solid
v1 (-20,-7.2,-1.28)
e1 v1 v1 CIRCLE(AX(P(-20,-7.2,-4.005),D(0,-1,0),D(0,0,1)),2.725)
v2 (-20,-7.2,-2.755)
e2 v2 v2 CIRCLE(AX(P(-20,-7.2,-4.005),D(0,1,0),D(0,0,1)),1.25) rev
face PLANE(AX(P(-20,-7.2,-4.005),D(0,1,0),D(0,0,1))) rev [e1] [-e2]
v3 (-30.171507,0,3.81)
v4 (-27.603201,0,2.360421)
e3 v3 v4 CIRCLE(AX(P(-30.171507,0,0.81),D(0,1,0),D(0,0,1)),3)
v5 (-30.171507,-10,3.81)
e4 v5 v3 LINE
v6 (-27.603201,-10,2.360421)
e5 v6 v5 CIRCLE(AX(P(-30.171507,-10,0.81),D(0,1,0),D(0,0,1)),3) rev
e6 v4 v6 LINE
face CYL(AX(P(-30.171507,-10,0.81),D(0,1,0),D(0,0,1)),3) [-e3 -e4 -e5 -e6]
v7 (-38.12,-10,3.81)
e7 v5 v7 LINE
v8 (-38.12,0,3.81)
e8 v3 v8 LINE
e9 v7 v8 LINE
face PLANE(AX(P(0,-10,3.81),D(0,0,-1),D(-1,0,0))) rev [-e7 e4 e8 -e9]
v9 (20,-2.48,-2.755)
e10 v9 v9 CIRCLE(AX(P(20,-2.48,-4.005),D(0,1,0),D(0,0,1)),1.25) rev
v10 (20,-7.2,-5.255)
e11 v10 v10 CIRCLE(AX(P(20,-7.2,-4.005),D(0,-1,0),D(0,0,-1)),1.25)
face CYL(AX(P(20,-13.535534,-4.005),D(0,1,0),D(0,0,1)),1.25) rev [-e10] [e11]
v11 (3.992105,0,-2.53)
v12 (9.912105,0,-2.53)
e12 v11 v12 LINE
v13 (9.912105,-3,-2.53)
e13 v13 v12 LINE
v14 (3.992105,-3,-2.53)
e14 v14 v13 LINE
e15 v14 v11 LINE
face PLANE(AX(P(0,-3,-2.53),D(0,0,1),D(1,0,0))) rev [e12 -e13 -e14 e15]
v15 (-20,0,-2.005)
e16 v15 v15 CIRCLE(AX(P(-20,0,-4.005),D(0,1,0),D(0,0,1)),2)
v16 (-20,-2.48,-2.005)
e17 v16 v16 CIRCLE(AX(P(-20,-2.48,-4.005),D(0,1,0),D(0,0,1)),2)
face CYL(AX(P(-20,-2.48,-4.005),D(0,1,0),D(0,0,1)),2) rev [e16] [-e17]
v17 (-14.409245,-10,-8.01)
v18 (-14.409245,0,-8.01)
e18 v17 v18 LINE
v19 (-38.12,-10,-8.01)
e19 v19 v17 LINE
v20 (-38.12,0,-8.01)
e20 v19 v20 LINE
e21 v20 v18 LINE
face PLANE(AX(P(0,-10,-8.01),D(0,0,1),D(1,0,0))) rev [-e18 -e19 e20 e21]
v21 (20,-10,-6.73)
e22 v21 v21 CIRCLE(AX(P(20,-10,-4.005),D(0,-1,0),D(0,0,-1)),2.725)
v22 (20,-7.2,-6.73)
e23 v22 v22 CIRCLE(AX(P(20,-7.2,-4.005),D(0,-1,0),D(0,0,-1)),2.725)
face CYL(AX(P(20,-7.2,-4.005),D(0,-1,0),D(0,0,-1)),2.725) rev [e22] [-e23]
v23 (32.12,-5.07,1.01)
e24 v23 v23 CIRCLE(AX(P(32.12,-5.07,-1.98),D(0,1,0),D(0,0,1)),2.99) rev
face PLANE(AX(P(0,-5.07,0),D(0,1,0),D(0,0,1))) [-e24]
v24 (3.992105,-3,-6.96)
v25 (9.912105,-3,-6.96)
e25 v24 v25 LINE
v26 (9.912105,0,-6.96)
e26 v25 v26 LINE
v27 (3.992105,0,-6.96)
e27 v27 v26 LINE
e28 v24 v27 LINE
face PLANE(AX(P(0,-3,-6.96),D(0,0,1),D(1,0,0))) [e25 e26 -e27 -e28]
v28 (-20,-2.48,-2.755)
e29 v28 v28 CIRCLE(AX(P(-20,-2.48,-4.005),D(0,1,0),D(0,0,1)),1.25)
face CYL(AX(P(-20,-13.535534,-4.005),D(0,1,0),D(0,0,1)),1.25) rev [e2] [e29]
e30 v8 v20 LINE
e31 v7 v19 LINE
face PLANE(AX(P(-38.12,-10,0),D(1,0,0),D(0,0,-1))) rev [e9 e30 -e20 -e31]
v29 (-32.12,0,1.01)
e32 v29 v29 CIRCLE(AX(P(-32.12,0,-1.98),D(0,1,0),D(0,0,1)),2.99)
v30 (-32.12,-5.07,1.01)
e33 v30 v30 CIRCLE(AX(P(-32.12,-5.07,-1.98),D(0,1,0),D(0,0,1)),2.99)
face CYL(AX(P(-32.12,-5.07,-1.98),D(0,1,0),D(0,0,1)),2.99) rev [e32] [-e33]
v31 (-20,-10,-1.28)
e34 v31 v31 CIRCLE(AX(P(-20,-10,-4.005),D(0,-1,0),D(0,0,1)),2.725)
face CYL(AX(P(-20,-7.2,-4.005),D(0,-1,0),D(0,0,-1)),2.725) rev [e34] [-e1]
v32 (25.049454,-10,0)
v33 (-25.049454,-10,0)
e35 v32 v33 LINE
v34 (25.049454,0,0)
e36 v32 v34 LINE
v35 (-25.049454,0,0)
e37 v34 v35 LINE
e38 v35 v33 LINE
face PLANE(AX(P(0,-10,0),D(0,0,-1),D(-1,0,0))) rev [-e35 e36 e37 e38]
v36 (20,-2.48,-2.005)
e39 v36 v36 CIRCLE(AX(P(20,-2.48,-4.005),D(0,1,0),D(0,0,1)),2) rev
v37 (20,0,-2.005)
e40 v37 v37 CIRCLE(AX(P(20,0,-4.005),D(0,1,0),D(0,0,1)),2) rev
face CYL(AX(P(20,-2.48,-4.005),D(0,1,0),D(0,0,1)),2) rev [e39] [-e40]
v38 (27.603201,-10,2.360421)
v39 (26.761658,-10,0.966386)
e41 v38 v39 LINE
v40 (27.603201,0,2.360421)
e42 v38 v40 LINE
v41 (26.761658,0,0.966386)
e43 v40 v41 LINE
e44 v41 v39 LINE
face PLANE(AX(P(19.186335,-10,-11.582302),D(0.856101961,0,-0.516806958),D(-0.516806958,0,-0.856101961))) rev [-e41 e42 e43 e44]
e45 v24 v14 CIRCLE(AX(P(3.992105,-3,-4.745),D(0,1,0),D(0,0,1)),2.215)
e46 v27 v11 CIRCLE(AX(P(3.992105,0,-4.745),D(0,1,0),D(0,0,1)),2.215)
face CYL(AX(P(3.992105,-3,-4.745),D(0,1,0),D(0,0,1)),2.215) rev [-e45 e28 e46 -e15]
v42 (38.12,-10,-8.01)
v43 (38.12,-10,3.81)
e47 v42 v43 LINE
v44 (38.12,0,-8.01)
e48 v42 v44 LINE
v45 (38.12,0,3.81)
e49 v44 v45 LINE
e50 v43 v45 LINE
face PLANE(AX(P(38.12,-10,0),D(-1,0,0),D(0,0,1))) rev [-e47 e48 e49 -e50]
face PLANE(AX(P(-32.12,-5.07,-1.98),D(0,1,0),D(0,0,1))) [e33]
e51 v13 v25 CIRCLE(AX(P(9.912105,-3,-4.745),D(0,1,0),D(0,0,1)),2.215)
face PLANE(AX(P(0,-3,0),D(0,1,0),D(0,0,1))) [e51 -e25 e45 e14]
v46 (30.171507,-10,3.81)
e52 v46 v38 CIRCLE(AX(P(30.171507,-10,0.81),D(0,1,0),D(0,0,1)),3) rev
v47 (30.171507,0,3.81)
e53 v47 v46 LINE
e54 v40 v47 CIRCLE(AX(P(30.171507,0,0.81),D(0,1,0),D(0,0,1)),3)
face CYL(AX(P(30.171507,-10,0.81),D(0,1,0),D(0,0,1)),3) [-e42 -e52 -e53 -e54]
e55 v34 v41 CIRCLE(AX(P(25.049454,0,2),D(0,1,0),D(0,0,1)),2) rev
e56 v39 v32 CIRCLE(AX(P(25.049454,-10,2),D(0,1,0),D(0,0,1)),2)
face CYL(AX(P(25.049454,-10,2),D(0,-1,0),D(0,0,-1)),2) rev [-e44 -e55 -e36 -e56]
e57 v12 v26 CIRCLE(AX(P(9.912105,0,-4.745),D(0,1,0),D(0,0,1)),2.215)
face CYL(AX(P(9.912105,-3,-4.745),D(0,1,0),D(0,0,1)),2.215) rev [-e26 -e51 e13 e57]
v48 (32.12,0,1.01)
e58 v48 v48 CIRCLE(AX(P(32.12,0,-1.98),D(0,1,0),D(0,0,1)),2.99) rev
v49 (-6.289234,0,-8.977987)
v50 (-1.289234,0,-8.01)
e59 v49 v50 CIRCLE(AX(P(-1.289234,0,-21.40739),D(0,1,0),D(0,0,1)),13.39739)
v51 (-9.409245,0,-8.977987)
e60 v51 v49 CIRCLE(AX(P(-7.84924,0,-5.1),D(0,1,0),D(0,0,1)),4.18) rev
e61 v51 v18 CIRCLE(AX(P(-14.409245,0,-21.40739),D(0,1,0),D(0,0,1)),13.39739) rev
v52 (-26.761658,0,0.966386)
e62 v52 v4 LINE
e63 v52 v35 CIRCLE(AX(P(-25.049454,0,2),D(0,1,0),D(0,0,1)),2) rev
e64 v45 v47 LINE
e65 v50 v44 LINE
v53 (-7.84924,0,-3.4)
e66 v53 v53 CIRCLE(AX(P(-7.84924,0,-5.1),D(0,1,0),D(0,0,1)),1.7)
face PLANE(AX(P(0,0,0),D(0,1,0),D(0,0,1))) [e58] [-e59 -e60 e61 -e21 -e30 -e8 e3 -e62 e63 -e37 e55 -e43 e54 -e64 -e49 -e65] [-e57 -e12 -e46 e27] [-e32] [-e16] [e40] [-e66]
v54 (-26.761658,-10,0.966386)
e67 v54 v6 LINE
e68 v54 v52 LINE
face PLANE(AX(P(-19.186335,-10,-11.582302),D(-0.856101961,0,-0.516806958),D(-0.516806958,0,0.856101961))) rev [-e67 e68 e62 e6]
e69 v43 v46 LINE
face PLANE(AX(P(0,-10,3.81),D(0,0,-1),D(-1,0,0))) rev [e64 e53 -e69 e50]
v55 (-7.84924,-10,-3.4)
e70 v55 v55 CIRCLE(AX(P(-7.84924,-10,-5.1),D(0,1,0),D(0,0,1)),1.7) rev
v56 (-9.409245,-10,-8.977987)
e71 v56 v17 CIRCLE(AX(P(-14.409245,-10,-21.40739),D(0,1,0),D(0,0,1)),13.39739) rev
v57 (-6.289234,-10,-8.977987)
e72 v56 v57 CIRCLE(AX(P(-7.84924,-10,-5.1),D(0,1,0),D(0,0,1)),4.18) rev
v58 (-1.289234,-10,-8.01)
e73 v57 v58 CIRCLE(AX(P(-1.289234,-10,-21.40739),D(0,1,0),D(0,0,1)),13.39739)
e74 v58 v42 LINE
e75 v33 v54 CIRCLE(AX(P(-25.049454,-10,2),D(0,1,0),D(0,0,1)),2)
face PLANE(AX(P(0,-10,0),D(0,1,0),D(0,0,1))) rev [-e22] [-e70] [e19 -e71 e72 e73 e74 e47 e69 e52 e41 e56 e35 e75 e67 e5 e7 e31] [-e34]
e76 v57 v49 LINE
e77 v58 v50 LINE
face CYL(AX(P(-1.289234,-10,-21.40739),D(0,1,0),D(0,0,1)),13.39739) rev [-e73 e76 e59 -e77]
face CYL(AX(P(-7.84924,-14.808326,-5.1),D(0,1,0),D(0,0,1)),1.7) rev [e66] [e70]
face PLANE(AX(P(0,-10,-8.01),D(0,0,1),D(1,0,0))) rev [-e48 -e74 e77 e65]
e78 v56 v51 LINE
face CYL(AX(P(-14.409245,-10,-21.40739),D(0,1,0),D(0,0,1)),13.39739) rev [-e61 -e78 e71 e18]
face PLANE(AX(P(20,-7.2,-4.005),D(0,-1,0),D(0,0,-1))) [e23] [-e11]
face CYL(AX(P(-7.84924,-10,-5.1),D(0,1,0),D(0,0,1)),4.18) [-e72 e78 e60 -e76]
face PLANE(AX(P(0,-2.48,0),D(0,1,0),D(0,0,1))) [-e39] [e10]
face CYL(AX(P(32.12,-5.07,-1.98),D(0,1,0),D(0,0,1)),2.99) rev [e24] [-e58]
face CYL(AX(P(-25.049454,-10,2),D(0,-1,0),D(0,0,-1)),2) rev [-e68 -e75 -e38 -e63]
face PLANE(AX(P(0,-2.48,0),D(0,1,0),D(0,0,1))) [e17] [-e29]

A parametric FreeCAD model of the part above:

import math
import FreeCAD as App
import Part
import Sketcher
Q = App.Units.Quantity


def edges_at(feature, points):
    """Names of the edges that pass closest to the given points."""
    edges = feature.Shape.Edges
    near = lambda p: min(range(len(edges)), key=lambda i: edges[i].distToShape(Part.Vertex(*p))[0])
    return sorted({f"Edge{near(p) + 1}" for p in points})

doc = App.newDocument("Part")
body = doc.addObject("PartDesign::Body", "Body")

# Sketch on XZ plane
sketch1 = body.newObject("Sketcher::SketchObject", "Sketch")
sketch1.AttachmentSupport = (doc.getObject("XZ_Plane"), [""])
sketch1.MapMode = "FlatFace"
sketch1.addGeometry(Part.ArcOfCircle(Part.Circle(App.Vector(-7.8, -5.1, 0), App.Vector(0, 0, 1), 4.2), math.radians(-112), math.radians(-68)), False)
sketch1.addGeometry(Part.ArcOfCircle(Part.Circle(App.Vector(-14.4, -21.4, 0), App.Vector(0, 0, 1), 13.4), math.radians(68), math.radians(90)), False)
sketch1.addGeometry(Part.LineSegment(App.Vector(-14.4, -8, 0), App.Vector(-38.1, -8, 0)), False)
sketch1.addGeometry(Part.LineSegment(App.Vector(-38.1, -8, 0), App.Vector(-38.1, 3.8, 0)), False)
sketch1.addGeometry(Part.LineSegment(App.Vector(-38.1, 3.8, 0), App.Vector(-28.5, 3.8, 0)), False)
sketch1.addGeometry(Part.LineSegment(App.Vector(-28.5, 3.8, 0), App.Vector(-26.2, 0, 0)), False)
sketch1.addGeometry(Part.LineSegment(App.Vector(-26.2, 0, 0), App.Vector(26.2, 0, 0)), False)
sketch1.addGeometry(Part.LineSegment(App.Vector(26.2, 0, 0), App.Vector(28.5, 3.8, 0)), False)
sketch1.addGeometry(Part.LineSegment(App.Vector(28.5, 3.8, 0), App.Vector(38.1, 3.8, 0)), False)
sketch1.addGeometry(Part.LineSegment(App.Vector(38.1, 3.8, 0), App.Vector(38.1, -8, 0)), False)
sketch1.addGeometry(Part.LineSegment(App.Vector(38.1, -8, 0), App.Vector(-1.3, -8, 0)), False)
sketch1.addGeometry(Part.ArcOfCircle(Part.Circle(App.Vector(-1.3, -21.4, 0), App.Vector(0, 0, 1), 13.4), math.radians(90), math.radians(112)), False)
sketch1.addConstraint(Sketcher.Constraint("Tangent", 0, 1, 1, 1))
sketch1.addConstraint(Sketcher.Constraint("Tangent", 1, 2, 2, 1))
sketch1.addConstraint(Sketcher.Constraint("Coincident", 2, 2, 3, 1))
sketch1.addConstraint(Sketcher.Constraint("Coincident", 3, 2, 4, 1))
sketch1.addConstraint(Sketcher.Constraint("Coincident", 4, 2, 5, 1))
sketch1.addConstraint(Sketcher.Constraint("Coincident", 5, 2, 6, 1))
sketch1.addConstraint(Sketcher.Constraint("Coincident", 6, 2, 7, 1))
sketch1.addConstraint(Sketcher.Constraint("Coincident", 7, 2, 8, 1))
sketch1.addConstraint(Sketcher.Constraint("Coincident", 8, 2, 9, 1))
sketch1.addConstraint(Sketcher.Constraint("Coincident", 9, 2, 10, 1))
sketch1.addConstraint(Sketcher.Constraint("Tangent", 10, 2, 11, 1))
sketch1.addConstraint(Sketcher.Constraint("Tangent", 11, 2, 0, 2))
sketch1.addConstraint(Sketcher.Constraint("Horizontal", 2))
sketch1.addConstraint(Sketcher.Constraint("Vertical", 3))
sketch1.addConstraint(Sketcher.Constraint("Horizontal", 4))
sketch1.addConstraint(Sketcher.Constraint("Horizontal", 6))
sketch1.addConstraint(Sketcher.Constraint("Horizontal", 8))
sketch1.addConstraint(Sketcher.Constraint("Vertical", 9))
sketch1.addConstraint(Sketcher.Constraint("Horizontal", 10))
sketch1.addConstraint(Sketcher.Constraint("Equal", 1, 11))
sketch1.addConstraint(Sketcher.Constraint("Symmetric", 5, 2, 6, 2, -1, 1))
sketch1.addConstraint(Sketcher.Constraint("Symmetric", 4, 2, 7, 2, -2))
sketch1.addConstraint(Sketcher.Constraint("Symmetric", 2, 2, 9, 2, -2))
sketch1.addConstraint(Sketcher.Constraint("Radius", 0, Q("4.18 mm")))
sketch1.addConstraint(Sketcher.Constraint("DistanceX", 1, 3, 0, 1, Q("5 mm")))
sketch1.addConstraint(Sketcher.Constraint("DistanceY", 3, 1, 3, 2, Q("11.82 mm")))
sketch1.addConstraint(Sketcher.Constraint("DistanceY", 0, 3, -1, 1, Q("5.1 mm")))
sketch1.addConstraint(Sketcher.Constraint("DistanceX", 4, 2, 5, 2, Q("2.3 mm")))
sketch1.addConstraint(Sketcher.Constraint("DistanceY", 1, 2, -1, 1, Q("8.01 mm")))
sketch1.addConstraint(Sketcher.Constraint("DistanceX", 2, 2, -1, 1, Q("38.12 mm")))
sketch1.addConstraint(Sketcher.Constraint("DistanceX", 6, 1, 6, 2, Q("52.35655 mm")))
sketch1.addConstraint(Sketcher.Constraint("DistanceX", 2, 2, 2, 1, Q("23.710755 mm")))
pad1 = body.newObject("PartDesign::Pad", "Pad")
pad1.Profile = sketch1
pad1.Length = 10
doc.recompute()

fillet = body.newObject("PartDesign::Fillet", "Fillet")
fillet.Base = (pad1, edges_at(pad1, [(26.178, -5, 0), (-26.178, -5, 0)]))
fillet.Radius = 2
doc.recompute()

fillet2 = body.newObject("PartDesign::Fillet", "Fillet001")
fillet2.Base = (fillet, edges_at(fillet, [(28.478, -5, 3.81), (-28.478, -5, 3.81)]))
fillet2.Radius = 3

# Sketch on XZ plane
sketch2 = body.newObject("Sketcher::SketchObject", "Sketch001")
sketch2.AttachmentSupport = (doc.getObject("XZ_Plane"), [""])
sketch2.MapMode = "FlatFace"
sketch2.addGeometry(Part.Circle(App.Vector(32.1, -2, 0), App.Vector(0, 0, 1), 3), False)
sketch2.addGeometry(Part.Circle(App.Vector(-32.1, -2, 0), App.Vector(0, 0, 1), 3), False)
sketch2.addConstraint(Sketcher.Constraint("Equal", 0, 1))
sketch2.addConstraint(Sketcher.Constraint("Symmetric", 0, 3, 1, 3, -2))
sketch2.addConstraint(Sketcher.Constraint("Diameter", 0, Q("5.98 mm")))
sketch2.addConstraint(Sketcher.Constraint("DistanceX", -1, 1, 0, 3, Q("32.12 mm")))
sketch2.addConstraint(Sketcher.Constraint("DistanceY", 0, 3, -1, 1, Q("1.98 mm")))
pocket1 = body.newObject("PartDesign::Pocket", "Pocket")
pocket1.Profile = sketch2
pocket1.Length = 5.07
pocket1.Reversed = True

# Sketch on XZ plane
sketch3 = body.newObject("Sketcher::SketchObject", "Sketch002")
sketch3.AttachmentSupport = (doc.getObject("XZ_Plane"), [""])
sketch3.MapMode = "FlatFace"
sketch3.addGeometry(Part.Circle(App.Vector(-20, -4, 0), App.Vector(0, 0, 1), 2), False)
sketch3.addGeometry(Part.Circle(App.Vector(20, -4, 0), App.Vector(0, 0, 1), 2), False)
sketch3.addConstraint(Sketcher.Constraint("Equal", 0, 1))
sketch3.addConstraint(Sketcher.Constraint("Symmetric", 0, 3, 1, 3, -2))
sketch3.addConstraint(Sketcher.Constraint("Diameter", 0, Q("4 mm")))
sketch3.addConstraint(Sketcher.Constraint("DistanceX", 0, 3, -1, 1, Q("20 mm")))
sketch3.addConstraint(Sketcher.Constraint("DistanceY", 0, 3, -1, 1, Q("4.005 mm")))
pocket2 = body.newObject("PartDesign::Pocket", "Pocket001")
pocket2.Profile = sketch3
pocket2.Length = 2.48
pocket2.Reversed = True

# Sketch on XZ plane
sketch4 = body.newObject("Sketcher::SketchObject", "Sketch003")
sketch4.AttachmentSupport = (doc.getObject("XZ_Plane"), [""])
sketch4.MapMode = "FlatFace"
sketch4.addGeometry(Part.LineSegment(App.Vector(4, -2.5, 0), App.Vector(9.9, -2.5, 0)), False)
sketch4.addGeometry(Part.ArcOfCircle(Part.Circle(App.Vector(9.9, -4.7, 0), App.Vector(0, 0, 1), 2.2), math.radians(-90), math.radians(90)), False)
sketch4.addGeometry(Part.LineSegment(App.Vector(9.9, -7, 0), App.Vector(4, -7, 0)), False)
sketch4.addGeometry(Part.ArcOfCircle(Part.Circle(App.Vector(4, -4.7, 0), App.Vector(0, 0, 1), 2.2), math.radians(90), math.radians(270)), False)
sketch4.addConstraint(Sketcher.Constraint("Tangent", 0, 2, 1, 2))
sketch4.addConstraint(Sketcher.Constraint("Tangent", 1, 1, 2, 1))
sketch4.addConstraint(Sketcher.Constraint("Tangent", 2, 2, 3, 2))
sketch4.addConstraint(Sketcher.Constraint("Tangent", 3, 1, 0, 1))
sketch4.addConstraint(Sketcher.Constraint("Horizontal", 0))
sketch4.addConstraint(Sketcher.Constraint("Horizontal", 2))
sketch4.addConstraint(Sketcher.Constraint("Radius", 1, Q("2.215 mm")))
sketch4.addConstraint(Sketcher.Constraint("DistanceX", 0, 1, 0, 2, Q("5.92 mm")))
sketch4.addConstraint(Sketcher.Constraint("DistanceY", 0, 2, -1, 1, Q("2.53 mm")))
sketch4.addConstraint(Sketcher.Constraint("DistanceX", -1, 1, 1, 3, Q("9.912105 mm")))
pocket3 = body.newObject("PartDesign::Pocket", "Pocket002")
pocket3.Profile = sketch4
pocket3.Length = 3
pocket3.Reversed = True

# Sketch on XZ plane
sketch5 = body.newObject("Sketcher::SketchObject", "Sketch004")
sketch5.AttachmentSupport = (doc.getObject("XZ_Plane"), [""])
sketch5.MapMode = "FlatFace"
sketch5.addGeometry(Part.Circle(App.Vector(-7.8, -5.1, 0), App.Vector(0, 0, 1), 1.7), False)
sketch5.addConstraint(Sketcher.Constraint("Diameter", 0, Q("3.4 mm")))
sketch5.addConstraint(Sketcher.Constraint("DistanceY", 0, 3, -1, 1, Q("5.1 mm")))
sketch5.addConstraint(Sketcher.Constraint("DistanceX", 0, 3, -1, 1, Q("7.84924 mm")))
pocket4 = body.newObject("PartDesign::Pocket", "Pocket003")
pocket4.Profile = sketch5
pocket4.Length = 10
pocket4.Reversed = True

# Sketch on XZ plane
sketch6 = body.newObject("Sketcher::SketchObject", "Sketch005")
sketch6.AttachmentSupport = (doc.getObject("XZ_Plane"), [""])
sketch6.MapMode = "FlatFace"
sketch6.addGeometry(Part.Circle(App.Vector(-20, -4, 0), App.Vector(0, 0, 1), 1.2), False)
sketch6.addGeometry(Part.Circle(App.Vector(20, -4, 0), App.Vector(0, 0, 1), 1.2), False)
sketch6.addConstraint(Sketcher.Constraint("Equal", 0, 1))
sketch6.addConstraint(Sketcher.Constraint("Symmetric", 0, 3, 1, 3, -2))
sketch6.addConstraint(Sketcher.Constraint("Diameter", 0, Q("2.5 mm")))
sketch6.addConstraint(Sketcher.Constraint("DistanceX", 0, 3, -1, 1, Q("20 mm")))
sketch6.addConstraint(Sketcher.Constraint("DistanceY", 0, 3, -1, 1, Q("4.005 mm")))
pocket5 = body.newObject("PartDesign::Pocket", "Pocket004")
pocket5.Profile = sketch6
pocket5.Length = 10
pocket5.Reversed = True

# Sketch on XZ plane
sketch7 = body.newObject("Sketcher::SketchObject", "Sketch006")
sketch7.AttachmentSupport = (doc.getObject("XZ_Plane"), [""])
sketch7.MapMode = "FlatFace"
sketch7.AttachmentOffset = App.Placement(App.Vector(0, 0, 10), App.Rotation())
sketch7.addGeometry(Part.Circle(App.Vector(20, -4, 0), App.Vector(0, 0, 1), 2.7), False)
sketch7.addGeometry(Part.Circle(App.Vector(-20, -4, 0), App.Vector(0, 0, 1), 2.7), False)
sketch7.addConstraint(Sketcher.Constraint("Equal", 0, 1))
sketch7.addConstraint(Sketcher.Constraint("Symmetric", 0, 3, 1, 3, -2))
sketch7.addConstraint(Sketcher.Constraint("Diameter", 0, Q("5.45 mm")))
sketch7.addConstraint(Sketcher.Constraint("DistanceX", -1, 1, 0, 3, Q("20 mm")))
sketch7.addConstraint(Sketcher.Constraint("DistanceY", 0, 3, -1, 1, Q("4.005 mm")))
pocket6 = body.newObject("PartDesign::Pocket", "Pocket005")
pocket6.Profile = sketch7
pocket6.Length = 2.8

doc.recompute()
